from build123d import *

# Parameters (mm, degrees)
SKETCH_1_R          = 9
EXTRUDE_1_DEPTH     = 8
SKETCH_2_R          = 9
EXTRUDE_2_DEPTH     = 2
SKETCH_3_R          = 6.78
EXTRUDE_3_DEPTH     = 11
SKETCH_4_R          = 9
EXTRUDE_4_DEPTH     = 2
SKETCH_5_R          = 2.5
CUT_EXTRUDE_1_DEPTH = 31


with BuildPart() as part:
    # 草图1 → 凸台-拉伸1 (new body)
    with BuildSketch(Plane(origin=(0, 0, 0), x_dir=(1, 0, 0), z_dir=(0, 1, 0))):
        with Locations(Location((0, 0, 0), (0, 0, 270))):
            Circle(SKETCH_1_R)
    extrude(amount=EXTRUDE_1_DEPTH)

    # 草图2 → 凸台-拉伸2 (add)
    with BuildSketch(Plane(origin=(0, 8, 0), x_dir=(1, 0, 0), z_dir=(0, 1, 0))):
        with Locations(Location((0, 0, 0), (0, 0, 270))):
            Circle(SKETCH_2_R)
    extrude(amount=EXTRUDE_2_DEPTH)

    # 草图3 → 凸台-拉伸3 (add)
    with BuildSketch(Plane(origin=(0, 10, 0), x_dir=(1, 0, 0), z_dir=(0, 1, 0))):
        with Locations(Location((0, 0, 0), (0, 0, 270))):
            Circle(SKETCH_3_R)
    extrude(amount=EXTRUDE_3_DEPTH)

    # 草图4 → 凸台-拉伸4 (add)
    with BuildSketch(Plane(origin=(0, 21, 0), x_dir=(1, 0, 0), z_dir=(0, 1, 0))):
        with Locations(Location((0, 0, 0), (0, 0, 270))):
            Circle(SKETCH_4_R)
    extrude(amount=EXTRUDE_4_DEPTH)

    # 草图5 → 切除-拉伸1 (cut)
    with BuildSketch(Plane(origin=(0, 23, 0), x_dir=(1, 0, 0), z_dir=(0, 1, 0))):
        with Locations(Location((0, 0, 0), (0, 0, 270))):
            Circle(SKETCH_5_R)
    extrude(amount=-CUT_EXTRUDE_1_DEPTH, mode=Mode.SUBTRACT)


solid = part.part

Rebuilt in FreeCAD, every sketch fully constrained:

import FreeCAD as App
import Part
import Sketcher
from FreeCAD import Vector
Q = App.Units.Quantity

doc = App.newDocument("Part")
params = doc.addObject("Spreadsheet::Sheet", "Params")
for row, (alias, value) in enumerate([
    ("sketch1_diameter", "18 mm"),
    ("pad1_length", "8 mm"),
    ("sketch2_diameter", "18 mm"),
    ("pad2_length", "2 mm"),
    ("sketch3_diameter", "13.56 mm"),
    ("pad3_length", "11 mm"),
    ("sketch4_diameter", "18 mm"),
    ("pad4_length", "2 mm"),
    ("sketch5_diameter", "5 mm"),
    ("pocket1_length", "31 mm"),
], start=1):
    params.set(f"A{row}", alias)
    params.set(f"B{row}", "=" + value)
    params.setAlias(f"B{row}", alias)

body = doc.addObject("PartDesign::Body", "Body")

# Sketch on XZ plane
sketch1 = doc.addObject("Sketcher::SketchObject", "Sketch")
body.addObject(sketch1)
sketch1.AttachmentSupport = (doc.XZ_Plane, [""])
sketch1.MapMode = "FlatFace"
sketch1.addGeometry(Part.Circle(Vector(0, 0, 0), Vector(0, 0, 1), 9), False)
sketch1.addConstraint([
    Sketcher.Constraint("Coincident", 0, 3, -1, 1),
    Sketcher.Constraint("Diameter", 0, Q("18 mm")),
])
sketch1.setExpression("Constraints[1]", "Params.sketch1_diameter")
pad1 = doc.addObject("PartDesign::Pad", "Pad")
body.addObject(pad1)
pad1.Profile = sketch1
pad1.setExpression("Length", "Params.pad1_length")
pad1.Reversed = True

# Sketch on XZ plane
sketch2 = doc.addObject("Sketcher::SketchObject", "Sketch001")
body.addObject(sketch2)
sketch2.AttachmentSupport = (doc.XZ_Plane, [""])
sketch2.MapMode = "FlatFace"
sketch2.AttachmentOffset = App.Placement(Vector(0, 0, -8), App.Rotation())
sketch2.addGeometry(Part.Circle(Vector(0, 0, 0), Vector(0, 0, 1), 9), False)
sketch2.addConstraint([
    Sketcher.Constraint("Coincident", 0, 3, -1, 1),
    Sketcher.Constraint("Diameter", 0, Q("18 mm")),
])
sketch2.setExpression("Constraints[1]", "Params.sketch2_diameter")
pad2 = doc.addObject("PartDesign::Pad", "Pad001")
body.addObject(pad2)
pad2.Profile = sketch2
pad2.setExpression("Length", "Params.pad2_length")
pad2.Reversed = True

# Sketch on XZ plane
sketch3 = doc.addObject("Sketcher::SketchObject", "Sketch002")
body.addObject(sketch3)
sketch3.AttachmentSupport = (doc.XZ_Plane, [""])
sketch3.MapMode = "FlatFace"
sketch3.AttachmentOffset = App.Placement(Vector(0, 0, -10), App.Rotation())
sketch3.addGeometry(Part.Circle(Vector(0, 0, 0), Vector(0, 0, 1), 7), False)
sketch3.addConstraint([
    Sketcher.Constraint("Coincident", 0, 3, -1, 1),
    Sketcher.Constraint("Diameter", 0, Q("13.56 mm")),
])
sketch3.setExpression("Constraints[1]", "Params.sketch3_diameter")
pad3 = doc.addObject("PartDesign::Pad", "Pad002")
body.addObject(pad3)
pad3.Profile = sketch3
pad3.setExpression("Length", "Params.pad3_length")
pad3.Reversed = True

# Sketch on XZ plane
sketch4 = doc.addObject("Sketcher::SketchObject", "Sketch003")
body.addObject(sketch4)
sketch4.AttachmentSupport = (doc.XZ_Plane, [""])
sketch4.MapMode = "FlatFace"
sketch4.AttachmentOffset = App.Placement(Vector(0, 0, -21), App.Rotation())
sketch4.addGeometry(Part.Circle(Vector(0, 0, 0), Vector(0, 0, 1), 9), False)
sketch4.addConstraint([
    Sketcher.Constraint("Coincident", 0, 3, -1, 1),
    Sketcher.Constraint("Diameter", 0, Q("18 mm")),
])
sketch4.setExpression("Constraints[1]", "Params.sketch4_diameter")
pad4 = doc.addObject("PartDesign::Pad", "Pad003")
body.addObject(pad4)
pad4.Profile = sketch4
pad4.setExpression("Length", "Params.pad4_length")
pad4.Reversed = True

# Sketch on XZ plane
sketch5 = doc.addObject("Sketcher::SketchObject", "Sketch004")
body.addObject(sketch5)
sketch5.AttachmentSupport = (doc.XZ_Plane, [""])
sketch5.MapMode = "FlatFace"
sketch5.AttachmentOffset = App.Placement(Vector(0, 0, -23), App.Rotation())
sketch5.addGeometry(Part.Circle(Vector(0, 0, 0), Vector(0, 0, 1), 2.5), False)
sketch5.addConstraint([
    Sketcher.Constraint("Coincident", 0, 3, -1, 1),
    Sketcher.Constraint("Diameter", 0, Q("5 mm")),
])
sketch5.setExpression("Constraints[1]", "Params.sketch5_diameter")
pocket1 = doc.addObject("PartDesign::Pocket", "Pocket")
body.addObject(pocket1)
pocket1.Profile = sketch5
pocket1.setExpression("Length", "Params.pocket1_length")
pocket1.Reversed = True

doc.recompute()
